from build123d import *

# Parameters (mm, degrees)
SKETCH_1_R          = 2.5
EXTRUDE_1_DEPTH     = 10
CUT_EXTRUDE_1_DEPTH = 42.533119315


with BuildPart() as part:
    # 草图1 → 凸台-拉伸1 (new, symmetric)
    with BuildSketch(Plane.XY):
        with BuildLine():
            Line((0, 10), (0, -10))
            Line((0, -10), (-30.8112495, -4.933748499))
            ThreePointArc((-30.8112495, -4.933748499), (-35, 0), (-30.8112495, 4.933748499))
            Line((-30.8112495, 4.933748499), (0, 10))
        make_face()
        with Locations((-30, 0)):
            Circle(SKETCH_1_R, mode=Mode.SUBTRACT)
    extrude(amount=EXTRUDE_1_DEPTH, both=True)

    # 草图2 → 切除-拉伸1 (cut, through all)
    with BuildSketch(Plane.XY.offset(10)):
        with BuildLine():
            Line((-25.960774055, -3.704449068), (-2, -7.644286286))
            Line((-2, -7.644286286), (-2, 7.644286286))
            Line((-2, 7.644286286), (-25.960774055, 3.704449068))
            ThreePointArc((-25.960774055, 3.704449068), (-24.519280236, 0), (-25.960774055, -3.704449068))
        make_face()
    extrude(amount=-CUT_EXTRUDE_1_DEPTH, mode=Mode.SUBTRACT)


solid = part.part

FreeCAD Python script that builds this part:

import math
import FreeCAD as App
import Part
import Sketcher
Q = App.Units.Quantity

doc = App.newDocument("Part")
body = doc.addObject("PartDesign::Body", "Body")

# Sketch on XY plane
sketch1 = body.newObject("Sketcher::SketchObject", "Sketch")
sketch1.AttachmentSupport = (doc.getObject("XY_Plane"), [""])
sketch1.MapMode = "FlatFace"
sketch1.addGeometry(Part.LineSegment(App.Vector(0, -10, 0), App.Vector(0, 10, 0)), False)
sketch1.addGeometry(Part.LineSegment(App.Vector(0, 10, 0), App.Vector(-30.8, 4.9, 0)), False)
sketch1.addGeometry(Part.ArcOfCircle(Part.Circle(App.Vector(-30, 0, 0), App.Vector(0, 0, 1), 5), math.radians(99), math.radians(261)), False)
sketch1.addGeometry(Part.LineSegment(App.Vector(-30.8, -4.9, 0), App.Vector(0, -10, 0)), False)
sketch1.addGeometry(Part.Circle(App.Vector(-30, 0, 0), App.Vector(0, 0, 1), 2.5), False)
sketch1.addConstraint(Sketcher.Constraint("Coincident", 0, 2, 1, 1))
sketch1.addConstraint(Sketcher.Constraint("Tangent", 1, 2, 2, 1))
sketch1.addConstraint(Sketcher.Constraint("Tangent", 2, 2, 3, 1))
sketch1.addConstraint(Sketcher.Constraint("Coincident", 3, 2, 0, 1))
sketch1.addConstraint(Sketcher.Constraint("Vertical", 0))
sketch1.addConstraint(Sketcher.Constraint("Coincident", 4, 3, 2, 3))
sketch1.addConstraint(Sketcher.Constraint("Symmetric", 0, 2, 3, 2, -1, 1))
sketch1.addConstraint(Sketcher.Constraint("PointOnObject", 2, 3, -1))
sketch1.addConstraint(Sketcher.Constraint("Diameter", 4, Q("5 mm")))
sketch1.addConstraint(Sketcher.Constraint("Radius", 2, Q("5 mm")))
sketch1.addConstraint(Sketcher.Constraint("DistanceY", 0, 1, 0, 2, Q("20 mm")))
sketch1.addConstraint(Sketcher.Constraint("DistanceX", 2, 3, -1, 1, Q("30 mm")))
pad1 = body.newObject("PartDesign::Pad", "Pad")
pad1.Profile = sketch1
pad1.Length = 20
pad1.Midplane = True

# Sketch on XY plane
sketch2 = body.newObject("Sketcher::SketchObject", "Sketch001")
sketch2.AttachmentSupport = (doc.getObject("XY_Plane"), [""])
sketch2.MapMode = "FlatFace"
sketch2.AttachmentOffset = App.Placement(App.Vector(0, 0, 10), App.Rotation())
sketch2.addGeometry(Part.LineSegment(App.Vector(-26, -4, 0), App.Vector(-2, -8, 0)), False)
sketch2.addGeometry(Part.LineSegment(App.Vector(-2, -8, 0), App.Vector(-2, 8, 0)), False)
sketch2.addGeometry(Part.LineSegment(App.Vector(-2, 8, 0), App.Vector(-26, 4, 0)), False)
sketch2.addGeometry(Part.ArcOfCircle(Part.Circle(App.Vector(-30, 0, 0), App.Vector(0, 0, 1), 5), math.radians(-43), math.radians(43)), False)
sketch2.addConstraint(Sketcher.Constraint("Coincident", 0, 2, 1, 1))
sketch2.addConstraint(Sketcher.Constraint("Coincident", 1, 2, 2, 1))
sketch2.addConstraint(Sketcher.Constraint("Coincident", 2, 2, 3, 2))
sketch2.addConstraint(Sketcher.Constraint("Coincident", 3, 1, 0, 1))
sketch2.addConstraint(Sketcher.Constraint("Vertical", 1))
sketch2.addConstraint(Sketcher.Constraint("Symmetric", 2, 2, 3, 1, -1))
sketch2.addConstraint(Sketcher.Constraint("Equal", 0, 2))
sketch2.addConstraint(Sketcher.Constraint("DistanceX", 3, 3, -1, 1, Q("30 mm")))
sketch2.addConstraint(Sketcher.Constraint("DistanceX", 0, 2, -1, 1, Q("2 mm")))
sketch2.addConstraint(Sketcher.Constraint("Radius", 3, Q("5.48072 mm")))
sketch2.addConstraint(Sketcher.Constraint("DistanceY", 3, 1, 2, 2, Q("7.408898 mm")))
sketch2.addConstraint(Sketcher.Constraint("DistanceY", 1, 1, 1, 2, Q("15.288573 mm")))
pocket1 = body.newObject("PartDesign::Pocket", "Pocket")
pocket1.Profile = sketch2
pocket1.Type = "ThroughAll"

doc.recompute()
